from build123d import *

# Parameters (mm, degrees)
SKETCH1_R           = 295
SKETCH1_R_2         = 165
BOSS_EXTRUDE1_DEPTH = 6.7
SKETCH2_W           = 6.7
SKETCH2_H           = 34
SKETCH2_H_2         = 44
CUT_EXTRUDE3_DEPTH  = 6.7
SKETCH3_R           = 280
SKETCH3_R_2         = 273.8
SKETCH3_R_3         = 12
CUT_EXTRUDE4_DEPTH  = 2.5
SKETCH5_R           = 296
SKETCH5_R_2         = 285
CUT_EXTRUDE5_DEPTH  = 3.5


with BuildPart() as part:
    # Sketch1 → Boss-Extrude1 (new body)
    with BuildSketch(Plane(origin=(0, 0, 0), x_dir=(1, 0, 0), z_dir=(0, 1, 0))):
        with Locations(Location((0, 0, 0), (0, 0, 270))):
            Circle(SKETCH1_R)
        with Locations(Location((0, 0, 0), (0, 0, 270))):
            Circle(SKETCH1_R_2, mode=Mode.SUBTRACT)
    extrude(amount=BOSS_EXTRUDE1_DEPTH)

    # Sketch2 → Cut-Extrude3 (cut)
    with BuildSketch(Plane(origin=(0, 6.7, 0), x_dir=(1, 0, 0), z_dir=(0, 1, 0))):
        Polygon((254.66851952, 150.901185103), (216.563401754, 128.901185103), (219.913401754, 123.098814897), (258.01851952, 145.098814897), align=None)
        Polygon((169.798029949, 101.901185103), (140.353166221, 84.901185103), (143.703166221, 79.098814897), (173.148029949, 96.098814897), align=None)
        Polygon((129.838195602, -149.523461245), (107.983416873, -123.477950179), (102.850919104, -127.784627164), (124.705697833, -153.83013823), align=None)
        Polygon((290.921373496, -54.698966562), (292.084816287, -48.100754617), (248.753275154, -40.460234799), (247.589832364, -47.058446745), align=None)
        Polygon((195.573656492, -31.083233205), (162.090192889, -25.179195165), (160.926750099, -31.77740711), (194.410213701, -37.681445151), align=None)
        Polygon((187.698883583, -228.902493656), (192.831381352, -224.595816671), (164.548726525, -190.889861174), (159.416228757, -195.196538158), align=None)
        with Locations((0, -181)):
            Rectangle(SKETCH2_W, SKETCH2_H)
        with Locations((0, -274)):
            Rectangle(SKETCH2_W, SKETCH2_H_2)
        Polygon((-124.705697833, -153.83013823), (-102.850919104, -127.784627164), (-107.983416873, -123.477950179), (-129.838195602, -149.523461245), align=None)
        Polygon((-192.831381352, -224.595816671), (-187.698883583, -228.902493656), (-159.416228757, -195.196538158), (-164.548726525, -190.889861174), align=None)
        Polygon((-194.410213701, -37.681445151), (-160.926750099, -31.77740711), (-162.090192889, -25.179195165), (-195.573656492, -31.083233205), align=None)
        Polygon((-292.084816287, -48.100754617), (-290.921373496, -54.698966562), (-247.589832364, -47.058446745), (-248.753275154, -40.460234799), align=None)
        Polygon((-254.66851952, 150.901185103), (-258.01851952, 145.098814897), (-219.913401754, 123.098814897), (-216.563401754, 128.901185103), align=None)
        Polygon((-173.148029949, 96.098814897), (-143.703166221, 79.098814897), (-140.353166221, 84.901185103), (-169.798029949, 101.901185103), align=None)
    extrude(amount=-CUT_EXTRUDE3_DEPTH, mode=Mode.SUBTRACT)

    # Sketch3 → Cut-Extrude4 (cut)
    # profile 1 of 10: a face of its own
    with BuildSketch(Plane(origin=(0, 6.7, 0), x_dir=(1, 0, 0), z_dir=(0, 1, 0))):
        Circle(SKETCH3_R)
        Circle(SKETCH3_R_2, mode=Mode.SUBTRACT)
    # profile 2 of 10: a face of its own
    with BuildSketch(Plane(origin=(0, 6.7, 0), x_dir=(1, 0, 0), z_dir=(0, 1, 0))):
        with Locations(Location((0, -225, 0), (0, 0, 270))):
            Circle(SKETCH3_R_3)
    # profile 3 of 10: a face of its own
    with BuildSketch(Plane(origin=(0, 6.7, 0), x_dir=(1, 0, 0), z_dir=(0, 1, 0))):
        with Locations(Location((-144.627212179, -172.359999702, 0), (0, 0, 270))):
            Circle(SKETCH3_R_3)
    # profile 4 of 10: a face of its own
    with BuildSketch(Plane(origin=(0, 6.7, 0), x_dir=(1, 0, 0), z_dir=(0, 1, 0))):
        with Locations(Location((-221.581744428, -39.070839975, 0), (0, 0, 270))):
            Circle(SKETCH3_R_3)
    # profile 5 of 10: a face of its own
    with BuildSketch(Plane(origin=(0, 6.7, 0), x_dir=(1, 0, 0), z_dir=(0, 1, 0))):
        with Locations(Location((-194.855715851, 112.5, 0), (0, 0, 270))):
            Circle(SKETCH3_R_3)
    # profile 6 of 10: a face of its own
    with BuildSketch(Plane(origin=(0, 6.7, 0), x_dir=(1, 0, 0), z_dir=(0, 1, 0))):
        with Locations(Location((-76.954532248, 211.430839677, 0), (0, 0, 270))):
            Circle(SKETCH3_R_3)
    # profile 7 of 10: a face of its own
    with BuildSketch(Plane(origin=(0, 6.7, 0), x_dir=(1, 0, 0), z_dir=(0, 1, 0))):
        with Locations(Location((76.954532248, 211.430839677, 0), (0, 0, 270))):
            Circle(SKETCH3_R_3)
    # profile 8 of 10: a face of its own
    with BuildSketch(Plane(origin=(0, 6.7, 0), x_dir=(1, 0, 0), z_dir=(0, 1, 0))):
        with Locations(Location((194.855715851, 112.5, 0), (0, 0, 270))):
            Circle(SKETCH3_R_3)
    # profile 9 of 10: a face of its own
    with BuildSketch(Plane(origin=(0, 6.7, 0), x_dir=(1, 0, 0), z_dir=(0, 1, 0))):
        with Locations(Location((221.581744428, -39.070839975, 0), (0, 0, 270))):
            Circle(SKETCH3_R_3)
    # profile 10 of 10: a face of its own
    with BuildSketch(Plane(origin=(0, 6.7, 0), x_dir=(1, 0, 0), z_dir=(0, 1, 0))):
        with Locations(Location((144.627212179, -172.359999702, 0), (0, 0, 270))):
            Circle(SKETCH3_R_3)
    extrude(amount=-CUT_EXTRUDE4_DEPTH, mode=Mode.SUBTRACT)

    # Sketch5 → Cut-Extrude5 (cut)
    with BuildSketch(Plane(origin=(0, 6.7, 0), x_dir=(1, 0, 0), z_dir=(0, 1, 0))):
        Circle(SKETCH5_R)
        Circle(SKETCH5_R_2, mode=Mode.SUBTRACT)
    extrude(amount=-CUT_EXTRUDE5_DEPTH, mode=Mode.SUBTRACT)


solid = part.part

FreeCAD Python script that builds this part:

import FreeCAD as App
import Part
import Sketcher
from FreeCAD import Vector
Q = App.Units.Quantity


def add_polygon(sketch, points):
    """Adds a closed chain of lines whose ends are joined by coincident constraints."""
    first, n = sketch.GeometryCount, len(points)
    for a, b in zip(points, points[1:] + points[:1]):
        sketch.addGeometry(Part.LineSegment(App.Vector(*a, 0), App.Vector(*b, 0)), False)
    for i in range(n):
        sketch.addConstraint(Sketcher.Constraint("Coincident", first + i, 2, first + (i + 1) % n, 1))

doc = App.newDocument("Part")
body = doc.addObject("PartDesign::Body", "Body")

# Sketch on XZ plane
sketch1 = body.newObject("Sketcher::SketchObject", "Sketch")
sketch1.AttachmentSupport = (doc.getObject("XZ_Plane"), [""])
sketch1.MapMode = "FlatFace"
sketch1.addGeometry(Part.Circle(Vector(0, 0, 0), Vector(0, 0, 1), 295), False)
sketch1.addGeometry(Part.Circle(Vector(0, 0, 0), Vector(0, 0, 1), 165), False)
sketch1.addConstraint(Sketcher.Constraint("Coincident", 0, 3, -1, 1))
sketch1.addConstraint(Sketcher.Constraint("Coincident", 1, 3, -1, 1))
sketch1.addConstraint(Sketcher.Constraint("Diameter", 0, Q("590 mm")))
sketch1.addConstraint(Sketcher.Constraint("Diameter", 1, Q("330 mm")))
pad1 = body.newObject("PartDesign::Pad", "Pad")
pad1.Profile = sketch1
pad1.Length = 6.7
pad1.Reversed = True

# Sketch on XZ plane
sketch2 = body.newObject("Sketcher::SketchObject", "Sketch001")
sketch2.AttachmentSupport = (doc.getObject("XZ_Plane"), [""])
sketch2.MapMode = "FlatFace"
sketch2.AttachmentOffset = App.Placement(Vector(0, 0, -6.7), App.Rotation())
add_polygon(sketch2, [(255, -151), (217, -129), (220, -123), (258, -145)])  # lines 0-3
add_polygon(sketch2, [(170, -102), (140, -85), (144, -79), (173, -96)])  # lines 4-7
add_polygon(sketch2, [(130, 150), (108, 123), (103, 128), (125, 154)])  # lines 8-11
add_polygon(sketch2, [(291, 55), (292, 48), (249, 40), (248, 47)])  # lines 12-15
add_polygon(sketch2, [(196, 31), (162, 25), (161, 32), (194, 38)])  # lines 16-19
add_polygon(sketch2, [(188, 229), (193, 225), (165, 191), (159, 195)])  # lines 20-23
add_polygon(sketch2, [(-3, 164), (-3, 198), (3, 198), (3, 164)])  # lines 24-27
add_polygon(sketch2, [(-3, 252), (-3, 296), (3, 296), (3, 252)])  # lines 28-31
add_polygon(sketch2, [(-125, 154), (-103, 128), (-108, 123), (-130, 150)])  # lines 32-35
add_polygon(sketch2, [(-193, 225), (-188, 229), (-159, 195), (-165, 191)])  # lines 36-39
add_polygon(sketch2, [(-194, 38), (-161, 32), (-162, 25), (-196, 31)])  # lines 40-43
add_polygon(sketch2, [(-292, 48), (-291, 55), (-248, 47), (-249, 40)])  # lines 44-47
add_polygon(sketch2, [(-255, -151), (-258, -145), (-220, -123), (-217, -129)])  # lines 48-51
add_polygon(sketch2, [(-173, -96), (-144, -79), (-140, -85), (-170, -102)])  # lines 52-55
sketch2.addConstraint(Sketcher.Constraint("Vertical", 24))
sketch2.addConstraint(Sketcher.Constraint("Horizontal", 25))
sketch2.addConstraint(Sketcher.Constraint("Vertical", 26))
sketch2.addConstraint(Sketcher.Constraint("Horizontal", 27))
sketch2.addConstraint(Sketcher.Constraint("Vertical", 28))
sketch2.addConstraint(Sketcher.Constraint("Horizontal", 29))
sketch2.addConstraint(Sketcher.Constraint("Vertical", 30))
sketch2.addConstraint(Sketcher.Constraint("Horizontal", 31))
sketch2.addConstraint(Sketcher.Constraint("Symmetric", 9, 2, 32, 2, -2))
sketch2.addConstraint(Sketcher.Constraint("Symmetric", 8, 2, 33, 2, -2))
sketch2.addConstraint(Sketcher.Constraint("Symmetric", 11, 2, 34, 2, -2))
sketch2.addConstraint(Sketcher.Constraint("Symmetric", 10, 2, 35, 2, -2))
sketch2.addConstraint(Sketcher.Constraint("Symmetric", 23, 2, 36, 2, -2))
sketch2.addConstraint(Sketcher.Constraint("Symmetric", 22, 2, 37, 2, -2))
sketch2.addConstraint(Sketcher.Constraint("Symmetric", 21, 2, 38, 2, -2))
sketch2.addConstraint(Sketcher.Constraint("Symmetric", 20, 2, 39, 2, -2))
sketch2.addConstraint(Sketcher.Constraint("Symmetric", 17, 2, 40, 2, -2))
sketch2.addConstraint(Sketcher.Constraint("Symmetric", 16, 2, 41, 2, -2))
sketch2.addConstraint(Sketcher.Constraint("Symmetric", 19, 2, 42, 2, -2))
sketch2.addConstraint(Sketcher.Constraint("Symmetric", 18, 2, 43, 2, -2))
sketch2.addConstraint(Sketcher.Constraint("Symmetric", 15, 2, 44, 2, -2))
sketch2.addConstraint(Sketcher.Constraint("Symmetric", 14, 2, 45, 2, -2))
sketch2.addConstraint(Sketcher.Constraint("Symmetric", 13, 2, 46, 2, -2))
sketch2.addConstraint(Sketcher.Constraint("Symmetric", 12, 2, 47, 2, -2))
sketch2.addConstraint(Sketcher.Constraint("Symmetric", 2, 2, 48, 2, -2))
sketch2.addConstraint(Sketcher.Constraint("Symmetric", 1, 2, 49, 2, -2))
sketch2.addConstraint(Sketcher.Constraint("Symmetric", 0, 2, 50, 2, -2))
sketch2.addConstraint(Sketcher.Constraint("Symmetric", 3, 2, 51, 2, -2))
sketch2.addConstraint(Sketcher.Constraint("Symmetric", 5, 2, 52, 2, -2))
sketch2.addConstraint(Sketcher.Constraint("Symmetric", 4, 2, 53, 2, -2))
sketch2.addConstraint(Sketcher.Constraint("Symmetric", 7, 2, 54, 2, -2))
sketch2.addConstraint(Sketcher.Constraint("Symmetric", 6, 2, 55, 2, -2))
sketch2.addConstraint(Sketcher.Constraint("Perpendicular", 0, 1))
sketch2.addConstraint(Sketcher.Constraint("Perpendicular", 1, 2))
sketch2.addConstraint(Sketcher.Constraint("Perpendicular", 2, 3))
sketch2.addConstraint(Sketcher.Constraint("Perpendicular", 3, 4))
sketch2.addConstraint(Sketcher.Constraint("Perpendicular", 4, 5))
sketch2.addConstraint(Sketcher.Constraint("Perpendicular", 5, 6))
sketch2.addConstraint(Sketcher.Constraint("Perpendicular", 6, 7))
sketch2.addConstraint(Sketcher.Constraint("Perpendicular", 8, 9))
sketch2.addConstraint(Sketcher.Constraint("Perpendicular", 9, 10))
sketch2.addConstraint(Sketcher.Constraint("Perpendicular", 10, 11))
sketch2.addConstraint(Sketcher.Constraint("Perpendicular", 12, 13))
sketch2.addConstraint(Sketcher.Constraint("Perpendicular", 13, 14))
sketch2.addConstraint(Sketcher.Constraint("Perpendicular", 14, 15))
sketch2.addConstraint(Sketcher.Constraint("Parallel", 15, 16))
sketch2.addConstraint(Sketcher.Constraint("Perpendicular", 16, 17))
sketch2.addConstraint(Sketcher.Constraint("Perpendicular", 17, 18))
sketch2.addConstraint(Sketcher.Constraint("Perpendicular", 18, 19))
sketch2.addConstraint(Sketcher.Constraint("Parallel", 11, 20))
sketch2.addConstraint(Sketcher.Constraint("Perpendicular", 20, 21))
sketch2.addConstraint(Sketcher.Constraint("Perpendicular", 21, 22))
sketch2.addConstraint(Sketcher.Constraint("Perpendicular", 22, 23))
sketch2.addConstraint(Sketcher.Constraint("Vertical", 27, 2, 28, 2))
sketch2.addConstraint(Sketcher.Constraint("Vertical", 26, 2, 29, 2))
sketch2.addConstraint(Sketcher.Constraint("Equal", 3, 5))
sketch2.addConstraint(Sketcher.Constraint("Equal", 6, 8))
sketch2.addConstraint(Sketcher.Constraint("Equal", 7, 9))
sketch2.addConstraint(Sketcher.Constraint("Equal", 11, 12))
sketch2.addConstraint(Sketcher.Constraint("Equal", 2, 13))
sketch2.addConstraint(Sketcher.Constraint("Equal", 10, 16))
sketch2.addConstraint(Sketcher.Constraint("Equal", 14, 17))
sketch2.addConstraint(Sketcher.Constraint("Equal", 19, 20))
sketch2.addConstraint(Sketcher.Constraint("Equal", 15, 21))
sketch2.addConstraint(Sketcher.Constraint("DistanceY", 24, 1, 24, 2, Q("34 mm")))
sketch2.addConstraint(Sketcher.Constraint("DistanceY", 28, 1, 28, 2, Q("44 mm")))
sketch2.addConstraint(Sketcher.Constraint("Angle", 0, Q("150 deg")))
sketch2.addConstraint(Sketcher.Constraint("Angle", 8, Q("-130 deg")))
sketch2.addConstraint(Sketcher.Constraint("Angle", 12, Q("-80 deg")))
sketch2.addConstraint(Sketcher.Constraint("Distance", 0, Q("44 mm")))
sketch2.addConstraint(Sketcher.Constraint("Distance", 4, Q("34 mm")))
sketch2.addConstraint(Sketcher.Constraint("DistanceX", 25, 1, 25, 2, Q("6.7 mm")))
sketch2.addConstraint(Sketcher.Constraint("DistanceY", -1, 1, 24, 2, Q("198 mm")))
sketch2.addConstraint(Sketcher.Constraint("DistanceY", -1, 1, 28, 2, Q("296 mm")))
sketch2.addConstraint(Sketcher.Constraint("DistanceY", 0, 2, 4, 2, Q("44 mm")))
sketch2.addConstraint(Sketcher.Constraint("Distance", 1, Q("6.7 mm")))
sketch2.addConstraint(Sketcher.Constraint("DistanceX", 24, 2, -1, 1, Q("3.35 mm")))
sketch2.addConstraint(Sketcher.Constraint("DistanceY", 18, 2, 14, 2, Q("9.377002 mm")))
sketch2.addConstraint(Sketcher.Constraint("DistanceX", -1, 1, 0, 2, Q("216.563402 mm")))
sketch2.addConstraint(Sketcher.Constraint("DistanceY", 11, 2, 21, 2, Q("41.3664 mm")))
sketch2.addConstraint(Sketcher.Constraint("DistanceX", -1, 1, 6, 2, Q("173.14803 mm")))
sketch2.addConstraint(Sketcher.Constraint("DistanceY", -1, 1, 8, 2, Q("123.47795 mm")))
sketch2.addConstraint(Sketcher.Constraint("DistanceX", -1, 1, 9, 2, Q("102.850919 mm")))
sketch2.addConstraint(Sketcher.Constraint("DistanceX", -1, 1, 17, 2, Q("160.92675 mm")))
sketch2.addConstraint(Sketcher.Constraint("DistanceX", -1, 1, 20, 2, Q("192.831381 mm")))
sketch2.addConstraint(Sketcher.Constraint("DistanceY", 1, 2, 12, 2, Q("171.19957 mm")))
sketch2.addConstraint(Sketcher.Constraint("DistanceX", 11, 2, 12, 2, Q("162.246621 mm")))
sketch2.addConstraint(Sketcher.Constraint("DistanceY", 14, 2, 20, 2, Q("177.53737 mm")))
pocket1 = body.newObject("PartDesign::Pocket", "Pocket")
pocket1.Profile = sketch2
pocket1.Length = 6.7
pocket1.Reversed = True

# Sketch on XZ plane
sketch3 = body.newObject("Sketcher::SketchObject", "Sketch002")
sketch3.AttachmentSupport = (doc.getObject("XZ_Plane"), [""])
sketch3.MapMode = "FlatFace"
sketch3.AttachmentOffset = App.Placement(Vector(0, 0, -6.7), App.Rotation())
sketch3.addGeometry(Part.Circle(Vector(0, 0, 0), Vector(0, 0, 1), 280), False)
sketch3.addGeometry(Part.Circle(Vector(0, 0, 0), Vector(0, 0, 1), 274), False)
sketch3.addGeometry(Part.Circle(Vector(0, 225, 0), Vector(0, 0, 1), 12), False)
sketch3.addGeometry(Part.Circle(Vector(-145, 172, 0), Vector(0, 0, 1), 12), False)
sketch3.addGeometry(Part.Circle(Vector(-222, 39, 0), Vector(0, 0, 1), 12), False)
sketch3.addGeometry(Part.Circle(Vector(-195, -112, 0), Vector(0, 0, 1), 12), False)
sketch3.addGeometry(Part.Circle(Vector(-77, -211, 0), Vector(0, 0, 1), 12), False)
sketch3.addGeometry(Part.Circle(Vector(77, -211, 0), Vector(0, 0, 1), 12), False)
sketch3.addGeometry(Part.Circle(Vector(195, -112, 0), Vector(0, 0, 1), 12), False)
sketch3.addGeometry(Part.Circle(Vector(222, 39, 0), Vector(0, 0, 1), 12), False)
sketch3.addGeometry(Part.Circle(Vector(145, 172, 0), Vector(0, 0, 1), 12), False)
sketch3.addConstraint(Sketcher.Constraint("Coincident", 0, 3, -1, 1))
sketch3.addConstraint(Sketcher.Constraint("Coincident", 1, 3, -1, 1))
sketch3.addConstraint(Sketcher.Constraint("Equal", 2, 3))
sketch3.addConstraint(Sketcher.Constraint("Equal", 3, 4))
sketch3.addConstraint(Sketcher.Constraint("Equal", 4, 5))
sketch3.addConstraint(Sketcher.Constraint("Equal", 5, 6))
sketch3.addConstraint(Sketcher.Constraint("Equal", 6, 7))
sketch3.addConstraint(Sketcher.Constraint("Equal", 7, 8))
sketch3.addConstraint(Sketcher.Constraint("Equal", 8, 9))
sketch3.addConstraint(Sketcher.Constraint("Equal", 9, 10))
sketch3.addConstraint(Sketcher.Constraint("Symmetric", 6, 3, 7, 3, -2))
sketch3.addConstraint(Sketcher.Constraint("Symmetric", 5, 3, 8, 3, -2))
sketch3.addConstraint(Sketcher.Constraint("Symmetric", 4, 3, 9, 3, -2))
sketch3.addConstraint(Sketcher.Constraint("Symmetric", 3, 3, 10, 3, -2))
sketch3.addConstraint(Sketcher.Constraint("PointOnObject", 2, 3, -2))
sketch3.addConstraint(Sketcher.Constraint("Diameter", 0, Q("560 mm")))
sketch3.addConstraint(Sketcher.Constraint("Diameter", 2, Q("24 mm")))
sketch3.addConstraint(Sketcher.Constraint("Diameter", 1, Q("547.6 mm")))
sketch3.addConstraint(Sketcher.Constraint("DistanceY", -1, 1, 2, 3, Q("225 mm")))
sketch3.addConstraint(Sketcher.Constraint("DistanceY", 5, 3, -1, 1, Q("112.5 mm")))
sketch3.addConstraint(Sketcher.Constraint("DistanceY", -1, 1, 3, 3, Q("172.36 mm")))
sketch3.addConstraint(Sketcher.Constraint("DistanceY", -1, 1, 4, 3, Q("39.07084 mm")))
sketch3.addConstraint(Sketcher.Constraint("DistanceY", 6, 3, -1, 1, Q("211.43084 mm")))
sketch3.addConstraint(Sketcher.Constraint("DistanceX", 4, 3, 5, 3, Q("26.726029 mm")))
sketch3.addConstraint(Sketcher.Constraint("DistanceX", 3, 3, 6, 3, Q("67.67268 mm")))
sketch3.addConstraint(Sketcher.Constraint("DistanceX", 5, 3, 7, 3, Q("271.810248 mm")))
sketch3.addConstraint(Sketcher.Constraint("DistanceX", 5, 3, 8, 3, Q("389.711432 mm")))
pocket2 = body.newObject("PartDesign::Pocket", "Pocket001")
pocket2.Profile = sketch3
pocket2.Length = 2.5
pocket2.Reversed = True

# Sketch on XZ plane
sketch4 = body.newObject("Sketcher::SketchObject", "Sketch003")
sketch4.AttachmentSupport = (doc.getObject("XZ_Plane"), [""])
sketch4.MapMode = "FlatFace"
sketch4.AttachmentOffset = App.Placement(Vector(0, 0, -6.7), App.Rotation())
sketch4.addGeometry(Part.Circle(Vector(0, 0, 0), Vector(0, 0, 1), 296), False)
sketch4.addGeometry(Part.Circle(Vector(0, 0, 0), Vector(0, 0, 1), 285), False)
sketch4.addConstraint(Sketcher.Constraint("Coincident", 0, 3, -1, 1))
sketch4.addConstraint(Sketcher.Constraint("Coincident", 1, 3, -1, 1))
sketch4.addConstraint(Sketcher.Constraint("Diameter", 0, Q("592 mm")))
sketch4.addConstraint(Sketcher.Constraint("Diameter", 1, Q("570 mm")))
pocket3 = body.newObject("PartDesign::Pocket", "Pocket002")
pocket3.Profile = sketch4
pocket3.Length = 3.5
pocket3.Reversed = True

doc.recompute()
